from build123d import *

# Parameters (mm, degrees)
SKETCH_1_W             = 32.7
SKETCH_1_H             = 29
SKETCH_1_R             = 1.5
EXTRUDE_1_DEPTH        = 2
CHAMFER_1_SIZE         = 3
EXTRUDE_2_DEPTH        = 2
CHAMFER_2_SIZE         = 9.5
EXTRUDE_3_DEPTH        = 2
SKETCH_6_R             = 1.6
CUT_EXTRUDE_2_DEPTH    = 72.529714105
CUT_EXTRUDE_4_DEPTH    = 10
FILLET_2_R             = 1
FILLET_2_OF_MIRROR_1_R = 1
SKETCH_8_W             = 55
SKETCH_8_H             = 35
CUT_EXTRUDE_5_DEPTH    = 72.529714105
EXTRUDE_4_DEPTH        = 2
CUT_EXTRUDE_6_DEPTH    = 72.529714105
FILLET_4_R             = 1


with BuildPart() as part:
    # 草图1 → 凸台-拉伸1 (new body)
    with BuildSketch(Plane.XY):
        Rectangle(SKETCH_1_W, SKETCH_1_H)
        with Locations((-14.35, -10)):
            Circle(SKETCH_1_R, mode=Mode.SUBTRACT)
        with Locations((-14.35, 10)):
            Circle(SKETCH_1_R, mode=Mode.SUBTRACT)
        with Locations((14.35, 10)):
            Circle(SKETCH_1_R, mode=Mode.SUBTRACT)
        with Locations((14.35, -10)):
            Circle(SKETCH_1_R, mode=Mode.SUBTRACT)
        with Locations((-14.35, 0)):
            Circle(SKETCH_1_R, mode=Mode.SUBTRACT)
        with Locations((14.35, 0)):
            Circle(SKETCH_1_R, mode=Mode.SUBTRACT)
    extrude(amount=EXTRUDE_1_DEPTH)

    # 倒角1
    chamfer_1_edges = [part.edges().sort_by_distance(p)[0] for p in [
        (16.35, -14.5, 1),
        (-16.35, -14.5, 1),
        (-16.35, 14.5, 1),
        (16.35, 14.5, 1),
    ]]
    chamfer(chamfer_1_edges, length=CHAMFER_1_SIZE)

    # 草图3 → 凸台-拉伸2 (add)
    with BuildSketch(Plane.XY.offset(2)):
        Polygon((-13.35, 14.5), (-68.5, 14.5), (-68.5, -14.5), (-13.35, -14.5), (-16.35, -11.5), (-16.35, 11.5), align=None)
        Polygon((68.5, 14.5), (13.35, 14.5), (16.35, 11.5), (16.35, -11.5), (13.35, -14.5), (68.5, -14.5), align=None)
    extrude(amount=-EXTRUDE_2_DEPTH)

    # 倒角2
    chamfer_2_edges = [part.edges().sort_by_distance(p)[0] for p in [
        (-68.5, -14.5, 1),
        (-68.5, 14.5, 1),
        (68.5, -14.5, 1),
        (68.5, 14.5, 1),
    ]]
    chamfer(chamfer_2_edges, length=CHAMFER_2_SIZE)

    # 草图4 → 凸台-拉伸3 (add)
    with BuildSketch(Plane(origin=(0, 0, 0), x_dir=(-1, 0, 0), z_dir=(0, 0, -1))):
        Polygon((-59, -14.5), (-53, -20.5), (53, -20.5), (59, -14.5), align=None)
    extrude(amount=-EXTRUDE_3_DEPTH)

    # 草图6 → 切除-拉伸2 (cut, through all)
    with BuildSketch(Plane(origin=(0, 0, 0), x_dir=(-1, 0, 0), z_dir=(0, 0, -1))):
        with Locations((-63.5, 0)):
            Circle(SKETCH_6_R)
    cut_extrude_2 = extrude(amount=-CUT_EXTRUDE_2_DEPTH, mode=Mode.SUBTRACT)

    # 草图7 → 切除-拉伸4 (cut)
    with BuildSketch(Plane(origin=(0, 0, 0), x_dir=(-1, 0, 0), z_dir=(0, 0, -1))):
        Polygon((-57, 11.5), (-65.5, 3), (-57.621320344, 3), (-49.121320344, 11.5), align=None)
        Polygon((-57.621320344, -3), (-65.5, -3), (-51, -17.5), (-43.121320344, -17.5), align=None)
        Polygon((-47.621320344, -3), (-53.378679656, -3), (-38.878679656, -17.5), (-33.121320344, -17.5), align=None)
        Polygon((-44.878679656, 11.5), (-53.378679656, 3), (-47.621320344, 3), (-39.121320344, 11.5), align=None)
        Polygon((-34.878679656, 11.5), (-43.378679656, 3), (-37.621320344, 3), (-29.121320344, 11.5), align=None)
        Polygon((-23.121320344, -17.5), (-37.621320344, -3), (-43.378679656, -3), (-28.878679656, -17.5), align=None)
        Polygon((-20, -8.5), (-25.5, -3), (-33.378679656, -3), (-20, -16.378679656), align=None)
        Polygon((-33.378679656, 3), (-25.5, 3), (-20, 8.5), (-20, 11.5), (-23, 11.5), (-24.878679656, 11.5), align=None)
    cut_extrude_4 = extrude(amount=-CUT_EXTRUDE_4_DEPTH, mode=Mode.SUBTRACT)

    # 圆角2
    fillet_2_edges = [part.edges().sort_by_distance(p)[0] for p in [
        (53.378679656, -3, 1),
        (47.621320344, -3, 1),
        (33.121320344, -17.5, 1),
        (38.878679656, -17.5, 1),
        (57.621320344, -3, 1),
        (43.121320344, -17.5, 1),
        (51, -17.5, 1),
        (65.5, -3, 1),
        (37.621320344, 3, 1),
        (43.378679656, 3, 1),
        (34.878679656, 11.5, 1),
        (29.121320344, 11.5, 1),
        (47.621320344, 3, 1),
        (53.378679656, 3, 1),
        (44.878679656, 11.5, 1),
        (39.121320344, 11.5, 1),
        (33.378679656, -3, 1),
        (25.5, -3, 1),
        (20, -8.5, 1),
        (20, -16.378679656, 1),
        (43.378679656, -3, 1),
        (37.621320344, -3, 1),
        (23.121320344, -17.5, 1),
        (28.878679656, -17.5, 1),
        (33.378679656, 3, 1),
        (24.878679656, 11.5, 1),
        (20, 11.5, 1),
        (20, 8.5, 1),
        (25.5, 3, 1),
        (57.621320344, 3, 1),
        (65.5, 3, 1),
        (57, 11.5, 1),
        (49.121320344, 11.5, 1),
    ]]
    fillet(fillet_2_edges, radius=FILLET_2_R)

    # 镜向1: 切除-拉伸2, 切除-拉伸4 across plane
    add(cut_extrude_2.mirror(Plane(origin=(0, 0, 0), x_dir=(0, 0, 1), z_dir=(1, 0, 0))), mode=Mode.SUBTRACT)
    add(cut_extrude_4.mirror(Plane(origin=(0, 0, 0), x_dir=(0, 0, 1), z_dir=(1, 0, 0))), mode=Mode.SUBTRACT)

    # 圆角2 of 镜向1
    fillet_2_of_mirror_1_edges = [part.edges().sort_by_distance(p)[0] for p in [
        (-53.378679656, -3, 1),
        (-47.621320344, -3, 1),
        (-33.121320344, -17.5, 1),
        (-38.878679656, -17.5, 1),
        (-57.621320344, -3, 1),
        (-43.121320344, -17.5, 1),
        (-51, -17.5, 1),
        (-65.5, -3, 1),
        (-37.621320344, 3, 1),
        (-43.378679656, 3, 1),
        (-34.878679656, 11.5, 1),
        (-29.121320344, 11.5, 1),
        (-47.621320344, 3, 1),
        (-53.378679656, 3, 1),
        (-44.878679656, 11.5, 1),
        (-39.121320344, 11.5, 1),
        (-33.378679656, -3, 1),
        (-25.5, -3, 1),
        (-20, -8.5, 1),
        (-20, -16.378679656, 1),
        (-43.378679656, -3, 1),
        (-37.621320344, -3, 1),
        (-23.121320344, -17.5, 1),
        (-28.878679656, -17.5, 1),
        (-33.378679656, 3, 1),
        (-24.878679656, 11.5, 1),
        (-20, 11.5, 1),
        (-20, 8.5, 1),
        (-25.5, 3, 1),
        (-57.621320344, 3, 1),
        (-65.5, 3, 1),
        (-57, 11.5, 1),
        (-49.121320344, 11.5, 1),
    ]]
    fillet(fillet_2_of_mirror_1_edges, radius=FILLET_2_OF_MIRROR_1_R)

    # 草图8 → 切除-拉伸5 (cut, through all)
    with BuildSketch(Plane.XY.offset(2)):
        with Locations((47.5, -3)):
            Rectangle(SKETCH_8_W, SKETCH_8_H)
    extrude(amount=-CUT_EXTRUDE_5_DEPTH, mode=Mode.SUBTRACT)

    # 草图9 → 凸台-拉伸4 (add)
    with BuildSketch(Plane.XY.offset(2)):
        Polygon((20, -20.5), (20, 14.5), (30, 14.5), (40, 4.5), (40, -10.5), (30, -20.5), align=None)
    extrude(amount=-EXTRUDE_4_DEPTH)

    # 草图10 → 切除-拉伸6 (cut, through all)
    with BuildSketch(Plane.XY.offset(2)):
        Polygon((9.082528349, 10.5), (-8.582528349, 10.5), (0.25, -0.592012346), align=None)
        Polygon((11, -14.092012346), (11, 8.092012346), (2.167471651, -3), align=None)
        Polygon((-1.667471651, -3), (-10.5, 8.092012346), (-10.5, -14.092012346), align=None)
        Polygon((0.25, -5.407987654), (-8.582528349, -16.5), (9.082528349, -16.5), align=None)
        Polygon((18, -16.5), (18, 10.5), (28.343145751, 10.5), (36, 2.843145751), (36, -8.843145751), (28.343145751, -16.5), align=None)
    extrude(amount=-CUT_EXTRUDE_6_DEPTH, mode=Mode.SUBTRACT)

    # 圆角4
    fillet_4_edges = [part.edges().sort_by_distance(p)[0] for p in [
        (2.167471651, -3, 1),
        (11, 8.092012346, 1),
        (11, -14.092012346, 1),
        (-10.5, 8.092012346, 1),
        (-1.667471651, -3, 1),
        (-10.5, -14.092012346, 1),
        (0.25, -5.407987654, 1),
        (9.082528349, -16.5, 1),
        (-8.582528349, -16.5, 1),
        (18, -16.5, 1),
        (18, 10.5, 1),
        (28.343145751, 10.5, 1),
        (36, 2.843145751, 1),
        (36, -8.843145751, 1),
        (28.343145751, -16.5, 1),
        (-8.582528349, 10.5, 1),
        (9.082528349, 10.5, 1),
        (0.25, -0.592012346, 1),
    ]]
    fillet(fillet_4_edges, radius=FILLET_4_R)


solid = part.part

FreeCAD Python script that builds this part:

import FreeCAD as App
import Part
import Sketcher
from FreeCAD import Vector
Q = App.Units.Quantity


def edges_at(feature, points):
    """Names of the edges that pass closest to the given points."""
    edges = feature.Shape.Edges
    near = lambda p: min(range(len(edges)), key=lambda i: edges[i].distToShape(Part.Vertex(*p))[0])
    return sorted({f"Edge{near(p) + 1}" for p in points})

doc = App.newDocument("Part")
params = doc.addObject("Spreadsheet::Sheet", "Params")
for row, (alias, value) in enumerate([
    ("sketch1_diameter", "3 mm"),
    ("sketch1_height", "29 mm"),
    ("sketch1_width", "32.7 mm"),
    ("pad1_length", "2 mm"),
    ("chamfer_size", "3 mm"),
    ("sketch2_height", "29 mm"),
    ("sketch2_height2", "23 mm"),
    ("sketch2_width", "55.15 mm"),
    ("pad2_length", "2 mm"),
    ("chamfer2_size", "9.5 mm"),
    ("sketch3_width", "106 mm"),
    ("sketch3_width2", "118 mm"),
    ("pad3_length", "2 mm"),
    ("sketch4_diameter", "3.2 mm"),
    ("sketch5_height", "3 mm"),
    ("pocket2_length", "10 mm"),
    ("fillet_radius", "1 mm"),
    ("fillet2_radius", "1 mm"),
    ("sketch6_width", "55 mm"),
    ("sketch6_height", "35 mm"),
    ("sketch7_width", "10 mm"),
    ("sketch7_height", "35 mm"),
    ("sketch7_height2", "15 mm"),
    ("pad4_length", "2 mm"),
    ("sketch8_height", "27 mm"),
    ("fillet3_radius", "1 mm"),
], start=1):
    params.set(f"A{row}", alias)
    params.set(f"B{row}", "=" + value)
    params.setAlias(f"B{row}", alias)

body = doc.addObject("PartDesign::Body", "Body")

# Sketch on XY plane
sketch1 = body.newObject("Sketcher::SketchObject", "Sketch")
sketch1.AttachmentSupport = (doc.getObject("XY_Plane"), [""])
sketch1.MapMode = "FlatFace"
sketch1.addGeometry([
    Part.LineSegment(Vector(-16.35, 14.5, 0), Vector(-16.35, -14.5, 0)),  # 0
    Part.LineSegment(Vector(-16.35, -14.5, 0), Vector(16.35, -14.5, 0)),  # 1
    Part.LineSegment(Vector(16.35, -14.5, 0), Vector(16.35, 14.5, 0)),  # 2
    Part.LineSegment(Vector(16.35, 14.5, 0), Vector(-16.35, 14.5, 0)),  # 3
    Part.Circle(Vector(-14.35, -10, 0), Vector(0, 0, 1), 1.5),  # 4
    Part.Circle(Vector(14.35, -10, 0), Vector(0, 0, 1), 1.5),  # 5
    Part.Circle(Vector(-14.35, 0, 0), Vector(0, 0, 1), 1.5),  # 6
    Part.Circle(Vector(-14.35, 10, 0), Vector(0, 0, 1), 1.5),  # 7
    Part.Circle(Vector(14.35, 0, 0), Vector(0, 0, 1), 1.5),  # 8
    Part.Circle(Vector(14.35, 10, 0), Vector(0, 0, 1), 1.5),  # 9
], False)
sketch1.addConstraint([
    Sketcher.Constraint("Coincident", 0, 2, 1, 1),
    Sketcher.Constraint("Coincident", 1, 2, 2, 1),
    Sketcher.Constraint("Coincident", 2, 2, 3, 1),
    Sketcher.Constraint("Coincident", 3, 2, 0, 1),
    Sketcher.Constraint("Vertical", 0),
    Sketcher.Constraint("Horizontal", 1),
    Sketcher.Constraint("Vertical", 2),
    Sketcher.Constraint("Horizontal", 3),
    Sketcher.Constraint("Equal", 4, 5),
    Sketcher.Constraint("Equal", 5, 6),
    Sketcher.Constraint("Equal", 6, 7),
    Sketcher.Constraint("Equal", 7, 8),
    Sketcher.Constraint("Equal", 8, 9),
    Sketcher.Constraint("Symmetric", 5, 3, 7, 3, -1, 1),
    Sketcher.Constraint("Symmetric", 6, 3, 8, 3, -1, 1),
    Sketcher.Constraint("Symmetric", 4, 3, 9, 3, -1, 1),
    Sketcher.Constraint("Symmetric", 0, 2, 2, 2, -1, 1),
    Sketcher.Constraint("Symmetric", 4, 3, 5, 3, -2),
    Sketcher.Constraint("PointOnObject", 6, 3, -1),
    Sketcher.Constraint("Vertical", 4, 3, 6, 3),
    Sketcher.Constraint("Diameter", 4, Q("3 mm")),
    Sketcher.Constraint("DistanceY", 0, 2, 0, 1, Q("29 mm")),
    Sketcher.Constraint("DistanceX", 1, 1, 1, 2, Q("32.7 mm")),
    Sketcher.Constraint("DistanceY", 4, 3, -1, 1, Q("10 mm")),
    Sketcher.Constraint("DistanceX", 0, 2, 4, 3, Q("2 mm")),
])
sketch1.setExpression("Constraints[20]", "Params.sketch1_diameter")
sketch1.setExpression("Constraints[21]", "Params.sketch1_height")
sketch1.setExpression("Constraints[22]", "Params.sketch1_width")
pad1 = body.newObject("PartDesign::Pad", "Pad")
pad1.Profile = sketch1
pad1.setExpression("Length", "Params.pad1_length")
doc.recompute()

chamfer = body.newObject("PartDesign::Chamfer", "Chamfer")
chamfer.Base = (pad1, edges_at(pad1, [
    (16.35, -14.5, 1),
    (-16.35, -14.5, 1),
    (-16.35, 14.5, 1),
    (16.35, 14.5, 1),
]))
chamfer.setExpression("Size", "Params.chamfer_size")

# Sketch on XY plane
sketch2 = body.newObject("Sketcher::SketchObject", "Sketch001")
sketch2.AttachmentSupport = (doc.getObject("XY_Plane"), [""])
sketch2.MapMode = "FlatFace"
sketch2.AttachmentOffset = App.Placement(Vector(0, 0, 2), App.Rotation())
sketch2.addGeometry([
    Part.LineSegment(Vector(-13.35, 14.5, 0), Vector(-68.5, 14.5, 0)),  # 0
    Part.LineSegment(Vector(-68.5, 14.5, 0), Vector(-68.5, -14.5, 0)),  # 1
    Part.LineSegment(Vector(-68.5, -14.5, 0), Vector(-13.35, -14.5, 0)),  # 2
    Part.LineSegment(Vector(-13.35, -14.5, 0), Vector(-16.35, -11.5, 0)),  # 3
    Part.LineSegment(Vector(-16.35, -11.5, 0), Vector(-16.35, 11.5, 0)),  # 4
    Part.LineSegment(Vector(-16.35, 11.5, 0), Vector(-13.35, 14.5, 0)),  # 5
    Part.LineSegment(Vector(68.5, 14.5, 0), Vector(13.35, 14.5, 0)),  # 6
    Part.LineSegment(Vector(13.35, 14.5, 0), Vector(16.35, 11.5, 0)),  # 7
    Part.LineSegment(Vector(16.35, 11.5, 0), Vector(16.35, -11.5, 0)),  # 8
    Part.LineSegment(Vector(16.35, -11.5, 0), Vector(13.35, -14.5, 0)),  # 9
    Part.LineSegment(Vector(13.35, -14.5, 0), Vector(68.5, -14.5, 0)),  # 10
    Part.LineSegment(Vector(68.5, -14.5, 0), Vector(68.5, 14.5, 0)),  # 11
], False)
sketch2.addConstraint([
    Sketcher.Constraint("Coincident", 0, 2, 1, 1),
    Sketcher.Constraint("Coincident", 1, 2, 2, 1),
    Sketcher.Constraint("Coincident", 2, 2, 3, 1),
    Sketcher.Constraint("Coincident", 3, 2, 4, 1),
    Sketcher.Constraint("Coincident", 4, 2, 5, 1),
    Sketcher.Constraint("Coincident", 5, 2, 0, 1),
    Sketcher.Constraint("Coincident", 6, 2, 7, 1),
    Sketcher.Constraint("Coincident", 7, 2, 8, 1),
    Sketcher.Constraint("Coincident", 8, 2, 9, 1),
    Sketcher.Constraint("Coincident", 9, 2, 10, 1),
    Sketcher.Constraint("Coincident", 10, 2, 11, 1),
    Sketcher.Constraint("Coincident", 11, 2, 6, 1),
    Sketcher.Constraint("Horizontal", 0),
    Sketcher.Constraint("Vertical", 1),
    Sketcher.Constraint("Horizontal", 2),
    Sketcher.Constraint("Vertical", 4),
    Sketcher.Constraint("Horizontal", 6),
    Sketcher.Constraint("Vertical", 8),
    Sketcher.Constraint("Horizontal", 10),
    Sketcher.Constraint("Vertical", 11),
    Sketcher.Constraint("Symmetric", 2, 2, 6, 2, -1, 1),
    Sketcher.Constraint("Symmetric", 3, 2, 7, 2, -1, 1),
    Sketcher.Constraint("Symmetric", 5, 2, 9, 2, -1, 1),
    Sketcher.Constraint("Symmetric", 5, 2, 6, 2, -2),
    Sketcher.Constraint("Perpendicular", 3, 5),
    Sketcher.Constraint("Perpendicular", 7, 9),
    Sketcher.Constraint("Horizontal", 4, 2, 7, 2),
    Sketcher.Constraint("Equal", 2, 6),
    Sketcher.Constraint("DistanceY", 1, 2, 1, 1, Q("29 mm")),
    Sketcher.Constraint("DistanceY", 4, 1, 4, 2, Q("23 mm")),
    Sketcher.Constraint("DistanceX", 0, 2, 0, 1, Q("55.15 mm")),
    Sketcher.Constraint("DistanceX", 0, 2, -1, 1, Q("68.5 mm")),
])
sketch2.setExpression("Constraints[28]", "Params.sketch2_height")
sketch2.setExpression("Constraints[29]", "Params.sketch2_height2")
sketch2.setExpression("Constraints[30]", "Params.sketch2_width")
pad2 = body.newObject("PartDesign::Pad", "Pad001")
pad2.Profile = sketch2
pad2.setExpression("Length", "Params.pad2_length")
pad2.Reversed = True
doc.recompute()

chamfer2 = body.newObject("PartDesign::Chamfer", "Chamfer001")
chamfer2.Base = (pad2, edges_at(pad2, [
    (-68.5, -14.5, 1),
    (-68.5, 14.5, 1),
    (68.5, -14.5, 1),
    (68.5, 14.5, 1),
]))
chamfer2.setExpression("Size", "Params.chamfer2_size")

# Sketch on XY plane
sketch3 = body.newObject("Sketcher::SketchObject", "Sketch002")
sketch3.AttachmentSupport = (doc.getObject("XY_Plane"), [""])
sketch3.MapMode = "FlatFace"
sketch3.addGeometry([
    Part.LineSegment(Vector(59, -14.5, 0), Vector(53, -20.5, 0)),
    Part.LineSegment(Vector(53, -20.5, 0), Vector(-53, -20.5, 0)),
    Part.LineSegment(Vector(-53, -20.5, 0), Vector(-59, -14.5, 0)),
    Part.LineSegment(Vector(-59, -14.5, 0), Vector(59, -14.5, 0)),
], False)
sketch3.addConstraint([
    Sketcher.Constraint("Coincident", 0, 2, 1, 1),
    Sketcher.Constraint("Coincident", 1, 2, 2, 1),
    Sketcher.Constraint("Coincident", 2, 2, 3, 1),
    Sketcher.Constraint("Coincident", 3, 2, 0, 1),
    Sketcher.Constraint("Horizontal", 1),
    Sketcher.Constraint("Horizontal", 3),
    Sketcher.Constraint("Perpendicular", 0, 2),
    Sketcher.Constraint("Equal", 0, 2),
    Sketcher.Constraint("DistanceX", 1, 2, 1, 1, Q("106 mm")),
    Sketcher.Constraint("DistanceX", 3, 1, 3, 2, Q("118 mm")),
    Sketcher.Constraint("DistanceX", -1, 1, 0, 2, Q("53 mm")),
    Sketcher.Constraint("DistanceY", 0, 2, -1, 1, Q("20.5 mm")),
])
sketch3.setExpression("Constraints[8]", "Params.sketch3_width")
sketch3.setExpression("Constraints[9]", "Params.sketch3_width2")
pad3 = body.newObject("PartDesign::Pad", "Pad002")
pad3.Profile = sketch3
pad3.setExpression("Length", "Params.pad3_length")

# Sketch on XY plane
sketch4 = body.newObject("Sketcher::SketchObject", "Sketch003")
sketch4.AttachmentSupport = (doc.getObject("XY_Plane"), [""])
sketch4.MapMode = "FlatFace"
sketch4.addGeometry(Part.Circle(Vector(63.5, 0, 0), Vector(0, 0, 1), 1.6), False)
sketch4.addConstraint([
    Sketcher.Constraint("PointOnObject", 0, 3, -1),
    Sketcher.Constraint("Diameter", 0, Q("3.2 mm")),
    Sketcher.Constraint("DistanceX", -1, 1, 0, 3, Q("63.5 mm")),
])
sketch4.setExpression("Constraints[1]", "Params.sketch4_diameter")
pocket1 = body.newObject("PartDesign::Pocket", "Pocket")
pocket1.Profile = sketch4
pocket1.Type = "ThroughAll"
pocket1.Reversed = True

# Sketch on XY plane
sketch5 = body.newObject("Sketcher::SketchObject", "Sketch004")
sketch5.AttachmentSupport = (doc.getObject("XY_Plane"), [""])
sketch5.MapMode = "FlatFace"
sketch5.addGeometry([
    Part.LineSegment(Vector(57, 11.5, 0), Vector(65.5, 3, 0)),  # 0
    Part.LineSegment(Vector(65.5, 3, 0), Vector(57.62132, 3, 0)),  # 1
    Part.LineSegment(Vector(57.62132, 3, 0), Vector(49.12132, 11.5, 0)),  # 2
    Part.LineSegment(Vector(49.12132, 11.5, 0), Vector(57, 11.5, 0)),  # 3
    Part.LineSegment(Vector(57.62132, -3, 0), Vector(65.5, -3, 0)),  # 4
    Part.LineSegment(Vector(65.5, -3, 0), Vector(51, -17.5, 0)),  # 5
    Part.LineSegment(Vector(51, -17.5, 0), Vector(43.12132, -17.5, 0)),  # 6
    Part.LineSegment(Vector(43.12132, -17.5, 0), Vector(57.62132, -3, 0)),  # 7
    Part.LineSegment(Vector(47.62132, -3, 0), Vector(53.37868, -3, 0)),  # 8
    Part.LineSegment(Vector(53.37868, -3, 0), Vector(38.87868, -17.5, 0)),  # 9
    Part.LineSegment(Vector(38.87868, -17.5, 0), Vector(33.12132, -17.5, 0)),  # 10
    Part.LineSegment(Vector(33.12132, -17.5, 0), Vector(47.62132, -3, 0)),  # 11
    Part.LineSegment(Vector(44.87868, 11.5, 0), Vector(53.37868, 3, 0)),  # 12
    Part.LineSegment(Vector(53.37868, 3, 0), Vector(47.62132, 3, 0)),  # 13
    Part.LineSegment(Vector(47.62132, 3, 0), Vector(39.12132, 11.5, 0)),  # 14
    Part.LineSegment(Vector(39.12132, 11.5, 0), Vector(44.87868, 11.5, 0)),  # 15
    Part.LineSegment(Vector(34.87868, 11.5, 0), Vector(43.37868, 3, 0)),  # 16
    Part.LineSegment(Vector(43.37868, 3, 0), Vector(37.62132, 3, 0)),  # 17
    Part.LineSegment(Vector(37.62132, 3, 0), Vector(29.12132, 11.5, 0)),  # 18
    Part.LineSegment(Vector(29.12132, 11.5, 0), Vector(34.87868, 11.5, 0)),  # 19
    Part.LineSegment(Vector(23.12132, -17.5, 0), Vector(37.62132, -3, 0)),  # 20
    Part.LineSegment(Vector(37.62132, -3, 0), Vector(43.37868, -3, 0)),  # 21
    Part.LineSegment(Vector(43.37868, -3, 0), Vector(28.87868, -17.5, 0)),  # 22
    Part.LineSegment(Vector(28.87868, -17.5, 0), Vector(23.12132, -17.5, 0)),  # 23
    Part.LineSegment(Vector(20, -8.5, 0), Vector(25.5, -3, 0)),  # 24
    Part.LineSegment(Vector(25.5, -3, 0), Vector(33.37868, -3, 0)),  # 25
    Part.LineSegment(Vector(33.37868, -3, 0), Vector(20, -16.37868, 0)),  # 26
    Part.LineSegment(Vector(20, -16.37868, 0), Vector(20, -8.5, 0)),  # 27
    Part.LineSegment(Vector(33.37868, 3, 0), Vector(25.5, 3, 0)),  # 28
    Part.LineSegment(Vector(25.5, 3, 0), Vector(20, 8.5, 0)),  # 29
    Part.LineSegment(Vector(20, 8.5, 0), Vector(20, 11.5, 0)),  # 30
    Part.LineSegment(Vector(20, 11.5, 0), Vector(24.87868, 11.5, 0)),  # 31
    Part.LineSegment(Vector(24.87868, 11.5, 0), Vector(33.37868, 3, 0)),  # 32
], False)
sketch5.addConstraint([
    Sketcher.Constraint("Coincident", 0, 2, 1, 1),
    Sketcher.Constraint("Coincident", 1, 2, 2, 1),
    Sketcher.Constraint("Coincident", 2, 2, 3, 1),
    Sketcher.Constraint("Coincident", 3, 2, 0, 1),
    Sketcher.Constraint("Coincident", 4, 2, 5, 1),
    Sketcher.Constraint("Coincident", 5, 2, 6, 1),
    Sketcher.Constraint("Coincident", 6, 2, 7, 1),
    Sketcher.Constraint("Coincident", 7, 2, 4, 1),
    Sketcher.Constraint("Coincident", 8, 2, 9, 1),
    Sketcher.Constraint("Coincident", 9, 2, 10, 1),
    Sketcher.Constraint("Coincident", 10, 2, 11, 1),
    Sketcher.Constraint("Coincident", 11, 2, 8, 1),
    Sketcher.Constraint("Coincident", 12, 2, 13, 1),
    Sketcher.Constraint("Coincident", 13, 2, 14, 1),
    Sketcher.Constraint("Coincident", 14, 2, 15, 1),
    Sketcher.Constraint("Coincident", 15, 2, 12, 1),
    Sketcher.Constraint("Coincident", 16, 2, 17, 1),
    Sketcher.Constraint("Coincident", 17, 2, 18, 1),
    Sketcher.Constraint("Coincident", 18, 2, 19, 1),
    Sketcher.Constraint("Coincident", 19, 2, 16, 1),
    Sketcher.Constraint("Coincident", 20, 2, 21, 1),
    Sketcher.Constraint("Coincident", 21, 2, 22, 1),
    Sketcher.Constraint("Coincident", 22, 2, 23, 1),
    Sketcher.Constraint("Coincident", 23, 2, 20, 1),
    Sketcher.Constraint("Coincident", 24, 2, 25, 1),
    Sketcher.Constraint("Coincident", 25, 2, 26, 1),
    Sketcher.Constraint("Coincident", 26, 2, 27, 1),
    Sketcher.Constraint("Coincident", 27, 2, 24, 1),
    Sketcher.Constraint("Coincident", 28, 2, 29, 1),
    Sketcher.Constraint("Coincident", 29, 2, 30, 1),
    Sketcher.Constraint("Coincident", 30, 2, 31, 1),
    Sketcher.Constraint("Coincident", 31, 2, 32, 1),
    Sketcher.Constraint("Coincident", 32, 2, 28, 1),
    Sketcher.Constraint("Horizontal", 1),
    Sketcher.Constraint("Horizontal", 3),
    Sketcher.Constraint("Horizontal", 4),
    Sketcher.Constraint("Horizontal", 6),
    Sketcher.Constraint("Horizontal", 8),
    Sketcher.Constraint("Horizontal", 10),
    Sketcher.Constraint("Horizontal", 13),
    Sketcher.Constraint("Horizontal", 15),
    Sketcher.Constraint("Horizontal", 17),
    Sketcher.Constraint("Horizontal", 19),
    Sketcher.Constraint("Horizontal", 21),
    Sketcher.Constraint("Horizontal", 23),
    Sketcher.Constraint("Horizontal", 25),
    Sketcher.Constraint("Vertical", 27),
    Sketcher.Constraint("Horizontal", 28),
    Sketcher.Constraint("Vertical", 30),
    Sketcher.Constraint("Horizontal", 31),
    Sketcher.Constraint("Symmetric", 0, 2, 4, 2, -1),
    Sketcher.Constraint("Symmetric", 8, 2, 12, 2, -1),
    Sketcher.Constraint("Symmetric", 17, 2, 20, 2, -1),
    Sketcher.Constraint("Symmetric", 24, 2, 28, 2, -1),
    Sketcher.Constraint("Symmetric", 27, 2, 29, 2, -1),
    Sketcher.Constraint("Parallel", 0, 2),
    Sketcher.Constraint("Perpendicular", 2, 5),
    Sketcher.Constraint("Parallel", 5, 7),
    Sketcher.Constraint("Parallel", 7, 9),
    Sketcher.Constraint("Parallel", 9, 11),
    Sketcher.Constraint("Perpendicular", 11, 12),
    Sketcher.Constraint("Parallel", 12, 14),
    Sketcher.Constraint("Parallel", 14, 16),
    Sketcher.Constraint("Parallel", 16, 18),
    Sketcher.Constraint("Perpendicular", 18, 20),
    Sketcher.Constraint("Parallel", 20, 22),
    Sketcher.Constraint("Parallel", 22, 24),
    Sketcher.Constraint("Parallel", 24, 26),
    Sketcher.Constraint("Perpendicular", 26, 29),
    Sketcher.Constraint("Parallel", 29, 32),
    Sketcher.Constraint("Horizontal", 7, 2, 8, 2),
    Sketcher.Constraint("Horizontal", 6, 2, 9, 2),
    Sketcher.Constraint("Horizontal", 3, 2, 14, 2),
    Sketcher.Constraint("Horizontal", 13, 2, 16, 2),
    Sketcher.Constraint("Horizontal", 15, 2, 18, 2),
    Sketcher.Constraint("Horizontal", 10, 2, 22, 2),
    Sketcher.Constraint("Horizontal", 21, 2, 24, 2),
    Sketcher.Constraint("Horizontal", 19, 2, 30, 2),
    Sketcher.Constraint("Vertical", 1, 2, 7, 2),
    Sketcher.Constraint("Vertical", 11, 2, 13, 2),
    Sketcher.Constraint("Vertical", 16, 2, 21, 2),
    Sketcher.Constraint("Vertical", 25, 2, 32, 2),
    Sketcher.Constraint("Equal", 15, 17),
    Sketcher.Constraint("Equal", 6, 25),
    Sketcher.Constraint("DistanceY", 30, 1, 30, 2, Q("3 mm")),
    Sketcher.Constraint("DistanceY", -1, 1, 0, 2, Q("3 mm")),
    Sketcher.Constraint("DistanceX", -1, 1, 3, 2, Q("57 mm")),
    Sketcher.Constraint("DistanceX", -1, 1, 5, 2, Q("51 mm")),
    Sketcher.Constraint("DistanceX", -1, 1, 26, 2, Q("20 mm")),
    Sketcher.Constraint("DistanceY", 5, 2, 2, 2, Q("29 mm")),
    Sketcher.Constraint("DistanceX", 10, 2, 6, 2, Q("10 mm")),
    Sketcher.Constraint("DistanceX", 16, 2, 12, 2, Q("10 mm")),
    Sketcher.Constraint("DistanceX", 25, 2, 21, 2, Q("10 mm")),
    Sketcher.Constraint("DistanceX", 1, 2, 1, 1, Q("7.87868 mm")),
])
sketch5.setExpression("Constraints[84]", "Params.sketch5_height")
pocket2 = body.newObject("PartDesign::Pocket", "Pocket001")
pocket2.Profile = sketch5
pocket2.setExpression("Length", "Params.pocket2_length")
pocket2.Reversed = True
doc.recompute()

fillet = body.newObject("PartDesign::Fillet", "Fillet")
fillet.Base = (pocket2, edges_at(pocket2, [
    (53.379, -3, 1),
    (47.621, -3, 1),
    (33.121, -17.5, 1),
    (38.879, -17.5, 1),
    (57.621, -3, 1),
    (43.121, -17.5, 1),
    (51, -17.5, 1),
    (65.5, -3, 1),
    (37.621, 3, 1),
    (43.379, 3, 1),
    (34.879, 11.5, 1),
    (29.121, 11.5, 1),
    (47.621, 3, 1),
    (53.379, 3, 1),
    (44.879, 11.5, 1),
    (39.121, 11.5, 1),
    (33.379, -3, 1),
    (25.5, -3, 1),
    (20, -8.5, 1),
    (20, -16.379, 1),
    (43.379, -3, 1),
    (37.621, -3, 1),
    (23.121, -17.5, 1),
    (28.879, -17.5, 1),
    (33.379, 3, 1),
    (24.879, 11.5, 1),
    (20, 11.5, 1),
    (20, 8.5, 1),
    (25.5, 3, 1),
    (57.621, 3, 1),
    (65.5, 3, 1),
    (57, 11.5, 1),
    (49.121, 11.5, 1),
]))
fillet.setExpression("Radius", "Params.fillet_radius")
doc.recompute()

mirrored = body.newObject("PartDesign::Mirrored", "Mirrored")
mirrored.Originals = [pocket1, pocket2]
mirrored.MirrorPlane = (doc.getObject("YZ_Plane"), [""])
body.Tip = mirrored
doc.recompute()

fillet2 = body.newObject("PartDesign::Fillet", "Fillet001")
fillet2.Base = (mirrored, edges_at(mirrored, [
    (-53.379, -3, 1),
    (-47.621, -3, 1),
    (-33.121, -17.5, 1),
    (-38.879, -17.5, 1),
    (-57.621, -3, 1),
    (-43.121, -17.5, 1),
    (-51, -17.5, 1),
    (-65.5, -3, 1),
    (-37.621, 3, 1),
    (-43.379, 3, 1),
    (-34.879, 11.5, 1),
    (-29.121, 11.5, 1),
    (-47.621, 3, 1),
    (-53.379, 3, 1),
    (-44.879, 11.5, 1),
    (-39.121, 11.5, 1),
    (-33.379, -3, 1),
    (-25.5, -3, 1),
    (-20, -8.5, 1),
    (-20, -16.379, 1),
    (-43.379, -3, 1),
    (-37.621, -3, 1),
    (-23.121, -17.5, 1),
    (-28.879, -17.5, 1),
    (-33.379, 3, 1),
    (-24.879, 11.5, 1),
    (-20, 11.5, 1),
    (-20, 8.5, 1),
    (-25.5, 3, 1),
    (-57.621, 3, 1),
    (-65.5, 3, 1),
    (-57, 11.5, 1),
    (-49.121, 11.5, 1),
]))
fillet2.setExpression("Radius", "Params.fillet2_radius")

# Sketch on XY plane
sketch6 = body.newObject("Sketcher::SketchObject", "Sketch005")
sketch6.AttachmentSupport = (doc.getObject("XY_Plane"), [""])
sketch6.MapMode = "FlatFace"
sketch6.AttachmentOffset = App.Placement(Vector(0, 0, 2), App.Rotation())
sketch6.addGeometry([
    Part.LineSegment(Vector(20, 14.5, 0), Vector(20, -20.5, 0)),
    Part.LineSegment(Vector(20, -20.5, 0), Vector(75, -20.5, 0)),
    Part.LineSegment(Vector(75, -20.5, 0), Vector(75, 14.5, 0)),
    Part.LineSegment(Vector(75, 14.5, 0), Vector(20, 14.5, 0)),
], False)
sketch6.addConstraint([
    Sketcher.Constraint("Coincident", 0, 2, 1, 1),
    Sketcher.Constraint("Coincident", 1, 2, 2, 1),
    Sketcher.Constraint("Coincident", 2, 2, 3, 1),
    Sketcher.Constraint("Coincident", 3, 2, 0, 1),
    Sketcher.Constraint("Vertical", 0),
    Sketcher.Constraint("Horizontal", 1),
    Sketcher.Constraint("Vertical", 2),
    Sketcher.Constraint("Horizontal", 3),
    Sketcher.Constraint("DistanceX", 1, 1, 1, 2, Q("55 mm")),
    Sketcher.Constraint("DistanceY", 0, 2, 0, 1, Q("35 mm")),
    Sketcher.Constraint("DistanceX", -1, 1, 0, 2, Q("20 mm")),
    Sketcher.Constraint("DistanceY", 0, 2, -1, 1, Q("20.5 mm")),
])
sketch6.setExpression("Constraints[8]", "Params.sketch6_width")
sketch6.setExpression("Constraints[9]", "Params.sketch6_height")
pocket3 = body.newObject("PartDesign::Pocket", "Pocket002")
pocket3.Profile = sketch6
pocket3.Type = "ThroughAll"

# Sketch on XY plane
sketch7 = body.newObject("Sketcher::SketchObject", "Sketch006")
sketch7.AttachmentSupport = (doc.getObject("XY_Plane"), [""])
sketch7.MapMode = "FlatFace"
sketch7.AttachmentOffset = App.Placement(Vector(0, 0, 2), App.Rotation())
sketch7.addGeometry([
    Part.LineSegment(Vector(20, 14.5, 0), Vector(20, -20.5, 0)),  # 0
    Part.LineSegment(Vector(20, -20.5, 0), Vector(30, -20.5, 0)),  # 1
    Part.LineSegment(Vector(30, -20.5, 0), Vector(40, -10.5, 0)),  # 2
    Part.LineSegment(Vector(40, -10.5, 0), Vector(40, 4.5, 0)),  # 3
    Part.LineSegment(Vector(40, 4.5, 0), Vector(30, 14.5, 0)),  # 4
    Part.LineSegment(Vector(30, 14.5, 0), Vector(20, 14.5, 0)),  # 5
], False)
sketch7.addConstraint([
    Sketcher.Constraint("Coincident", 0, 2, 1, 1),
    Sketcher.Constraint("Coincident", 1, 2, 2, 1),
    Sketcher.Constraint("Coincident", 2, 2, 3, 1),
    Sketcher.Constraint("Coincident", 3, 2, 4, 1),
    Sketcher.Constraint("Coincident", 4, 2, 5, 1),
    Sketcher.Constraint("Coincident", 5, 2, 0, 1),
    Sketcher.Constraint("Vertical", 0),
    Sketcher.Constraint("Horizontal", 1),
    Sketcher.Constraint("Vertical", 3),
    Sketcher.Constraint("Horizontal", 5),
    Sketcher.Constraint("Perpendicular", 2, 4),
    Sketcher.Constraint("Vertical", 1, 2, 4, 2),
    Sketcher.Constraint("Equal", 2, 4),
    Sketcher.Constraint("DistanceX", 1, 1, 1, 2, Q("10 mm")),
    Sketcher.Constraint("DistanceY", 0, 2, 0, 1, Q("35 mm")),
    Sketcher.Constraint("DistanceY", 3, 1, 3, 2, Q("15 mm")),
    Sketcher.Constraint("DistanceX", -1, 1, 0, 2, Q("20 mm")),
    Sketcher.Constraint("DistanceY", 0, 2, -1, 1, Q("20.5 mm")),
])
sketch7.setExpression("Constraints[13]", "Params.sketch7_width")
sketch7.setExpression("Constraints[14]", "Params.sketch7_height")
sketch7.setExpression("Constraints[15]", "Params.sketch7_height2")
pad4 = body.newObject("PartDesign::Pad", "Pad003")
pad4.Profile = sketch7
pad4.setExpression("Length", "Params.pad4_length")
pad4.Reversed = True

# Sketch on XY plane
sketch8 = body.newObject("Sketcher::SketchObject", "Sketch007")
sketch8.AttachmentSupport = (doc.getObject("XY_Plane"), [""])
sketch8.MapMode = "FlatFace"
sketch8.AttachmentOffset = App.Placement(Vector(0, 0, 2), App.Rotation())
sketch8.addGeometry([
    Part.LineSegment(Vector(9.082528, 10.5, 0), Vector(-8.582528, 10.5, 0)),  # 0
    Part.LineSegment(Vector(-8.582528, 10.5, 0), Vector(0.25, -0.592012, 0)),  # 1
    Part.LineSegment(Vector(0.25, -0.592012, 0), Vector(9.082528, 10.5, 0)),  # 2
    Part.LineSegment(Vector(11, -14.092012, 0), Vector(11, 8.092012, 0)),  # 3
    Part.LineSegment(Vector(11, 8.092012, 0), Vector(2.167472, -3, 0)),  # 4
    Part.LineSegment(Vector(2.167472, -3, 0), Vector(11, -14.092012, 0)),  # 5
    Part.LineSegment(Vector(-1.667472, -3, 0), Vector(-10.5, 8.092012, 0)),  # 6
    Part.LineSegment(Vector(-10.5, 8.092012, 0), Vector(-10.5, -14.092012, 0)),  # 7
    Part.LineSegment(Vector(-10.5, -14.092012, 0), Vector(-1.667472, -3, 0)),  # 8
    Part.LineSegment(Vector(0.25, -5.407988, 0), Vector(-8.582528, -16.5, 0)),  # 9
    Part.LineSegment(Vector(-8.582528, -16.5, 0), Vector(9.082528, -16.5, 0)),  # 10
    Part.LineSegment(Vector(9.082528, -16.5, 0), Vector(0.25, -5.407988, 0)),  # 11
    Part.LineSegment(Vector(18, 10.5, 0), Vector(18, -16.5, 0)),  # 12
    Part.LineSegment(Vector(18, -16.5, 0), Vector(28.343146, -16.5, 0)),  # 13
    Part.LineSegment(Vector(28.343146, -16.5, 0), Vector(36, -8.843146, 0)),  # 14
    Part.LineSegment(Vector(36, -8.843146, 0), Vector(36, 2.843146, 0)),  # 15
    Part.LineSegment(Vector(36, 2.843146, 0), Vector(28.343146, 10.5, 0)),  # 16
    Part.LineSegment(Vector(28.343146, 10.5, 0), Vector(18, 10.5, 0)),  # 17
], False)
sketch8.addConstraint([
    Sketcher.Constraint("Coincident", 0, 2, 1, 1),
    Sketcher.Constraint("Coincident", 1, 2, 2, 1),
    Sketcher.Constraint("Coincident", 2, 2, 0, 1),
    Sketcher.Constraint("Coincident", 3, 2, 4, 1),
    Sketcher.Constraint("Coincident", 4, 2, 5, 1),
    Sketcher.Constraint("Coincident", 5, 2, 3, 1),
    Sketcher.Constraint("Coincident", 6, 2, 7, 1),
    Sketcher.Constraint("Coincident", 7, 2, 8, 1),
    Sketcher.Constraint("Coincident", 8, 2, 6, 1),
    Sketcher.Constraint("Coincident", 9, 2, 10, 1),
    Sketcher.Constraint("Coincident", 10, 2, 11, 1),
    Sketcher.Constraint("Coincident", 11, 2, 9, 1),
    Sketcher.Constraint("Coincident", 12, 2, 13, 1),
    Sketcher.Constraint("Coincident", 13, 2, 14, 1),
    Sketcher.Constraint("Coincident", 14, 2, 15, 1),
    Sketcher.Constraint("Coincident", 15, 2, 16, 1),
    Sketcher.Constraint("Coincident", 16, 2, 17, 1),
    Sketcher.Constraint("Coincident", 17, 2, 12, 1),
    Sketcher.Constraint("Horizontal", 0),
    Sketcher.Constraint("Vertical", 3),
    Sketcher.Constraint("Vertical", 7),
    Sketcher.Constraint("Horizontal", 10),
    Sketcher.Constraint("Vertical", 12),
    Sketcher.Constraint("Horizontal", 13),
    Sketcher.Constraint("Vertical", 15),
    Sketcher.Constraint("Horizontal", 17),
    Sketcher.Constraint("Parallel", 2, 4),
    Sketcher.Constraint("Parallel", 1, 5),
    Sketcher.Constraint("Parallel", 5, 6),
    Sketcher.Constraint("Parallel", 4, 8),
    Sketcher.Constraint("Parallel", 8, 9),
    Sketcher.Constraint("Parallel", 6, 11),
    Sketcher.Constraint("Perpendicular", 14, 16),
    Sketcher.Constraint("Horizontal", 3, 2, 6, 2),
    Sketcher.Constraint("Horizontal", 5, 2, 7, 2),
    Sketcher.Constraint("Horizontal", 4, 2, 8, 2),
    Sketcher.Constraint("Horizontal", 10, 2, 12, 2),
    Sketcher.Constraint("Horizontal", 2, 2, 16, 2),
    Sketcher.Constraint("Vertical", 0, 2, 9, 2),
    Sketcher.Constraint("Vertical", 2, 2, 10, 2),
    Sketcher.Constraint("Vertical", 13, 2, 16, 2),
    Sketcher.Constraint("Equal", 2, 4),
    Sketcher.Constraint("Equal", 14, 16),
    Sketcher.Constraint("DistanceY", 12, 2, 12, 1, Q("27 mm")),
    Sketcher.Constraint("DistanceX", -1, 1, 3, 2, Q("11 mm")),
    Sketcher.Constraint("DistanceY", 4, 2, -1, 1, Q("3 mm")),
    Sketcher.Constraint("DistanceX", -1, 1, 12, 2, Q("18 mm")),
    Sketcher.Constraint("DistanceX", -1, 1, 14, 2, Q("36 mm")),
    Sketcher.Constraint("DistanceY", -1, 1, 0, 2, Q("10.5 mm")),
    Sketcher.Constraint("DistanceX", 6, 2, -1, 1, Q("10.5 mm")),
    Sketcher.Constraint("DistanceX", -1, 1, 1, 2, Q("0.25 mm")),
    Sketcher.Constraint("DistanceY", 15, 1, 15, 2, Q("11.686292 mm")),
    Sketcher.Constraint("Distance", 1, Q("14.179079 mm")),
    Sketcher.Constraint("DistanceX", 0, 2, 0, 1, Q("17.665057 mm")),
])
sketch8.setExpression("Constraints[43]", "Params.sketch8_height")
pocket4 = body.newObject("PartDesign::Pocket", "Pocket003")
pocket4.Profile = sketch8
pocket4.Type = "ThroughAll"
doc.recompute()

fillet3 = body.newObject("PartDesign::Fillet", "Fillet002")
fillet3.Base = (pocket4, edges_at(pocket4, [
    (2.167, -3, 1),
    (11, 8.092, 1),
    (11, -14.092, 1),
    (-10.5, 8.092, 1),
    (-1.667, -3, 1),
    (-10.5, -14.092, 1),
    (0.25, -5.408, 1),
    (9.083, -16.5, 1),
    (-8.583, -16.5, 1),
    (18, -16.5, 1),
    (18, 10.5, 1),
    (28.343, 10.5, 1),
    (36, 2.843, 1),
    (36, -8.843, 1),
    (28.343, -16.5, 1),
    (-8.583, 10.5, 1),
    (9.083, 10.5, 1),
    (0.25, -0.592, 1),
]))
fillet3.setExpression("Radius", "Params.fillet3_radius")

doc.recompute()
